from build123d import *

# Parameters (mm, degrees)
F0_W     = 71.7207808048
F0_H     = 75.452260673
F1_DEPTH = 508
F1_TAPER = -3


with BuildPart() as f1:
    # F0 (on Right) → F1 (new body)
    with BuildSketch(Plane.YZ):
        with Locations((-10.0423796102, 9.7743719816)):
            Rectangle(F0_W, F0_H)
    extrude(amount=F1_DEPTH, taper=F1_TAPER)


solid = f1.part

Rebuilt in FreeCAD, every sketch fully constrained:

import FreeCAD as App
import Part
import Sketcher

V = App.Vector
Q = App.Units.Quantity


def add_polygon(sketch, points):
    """Adds a closed chain of lines whose ends are joined by coincident constraints."""
    first, n = sketch.GeometryCount, len(points)
    for a, b in zip(points, points[1:] + points[:1]):
        sketch.addGeometry(Part.LineSegment(App.Vector(*a, 0), App.Vector(*b, 0)), False)
    for i in range(n):
        sketch.addConstraint(Sketcher.Constraint("Coincident", first + i, 2, first + (i + 1) % n, 1))

doc = App.newDocument("Part")
body = doc.addObject("PartDesign::Body", "Body")

# Sketch on YZ plane
sketch1 = doc.addObject("Sketcher::SketchObject", "Sketch")
body.addObject(sketch1)
sketch1.AttachmentSupport = (doc.YZ_Plane, [""])
sketch1.MapMode = "FlatFace"
add_polygon(sketch1, [(-45.90277, 47.500502), (-45.90277, -27.951758), (25.818011, -27.951758), (25.818011, 47.500502)])  # lines 0-3
sketch1.addConstraint([
    Sketcher.Constraint("Vertical", 0),
    Sketcher.Constraint("Horizontal", 1),
    Sketcher.Constraint("Vertical", 2),
    Sketcher.Constraint("Horizontal", 3),
    Sketcher.Constraint("DistanceX", 1, 1, 1, 2, Q("71.720781 mm")),
    Sketcher.Constraint("DistanceY", 0, 2, 0, 1, Q("75.452261 mm")),
    Sketcher.Constraint("DistanceX", 0, 2, -1, 1, Q("45.90277 mm")),
    Sketcher.Constraint("DistanceY", 0, 2, -1, 1, Q("27.951758 mm")),
])
pad1 = doc.addObject("PartDesign::Pad", "Pad")
body.addObject(pad1)
pad1.Profile = sketch1
pad1.Length = Q("20 in")
pad1.TaperAngle = 3

doc.recompute()
